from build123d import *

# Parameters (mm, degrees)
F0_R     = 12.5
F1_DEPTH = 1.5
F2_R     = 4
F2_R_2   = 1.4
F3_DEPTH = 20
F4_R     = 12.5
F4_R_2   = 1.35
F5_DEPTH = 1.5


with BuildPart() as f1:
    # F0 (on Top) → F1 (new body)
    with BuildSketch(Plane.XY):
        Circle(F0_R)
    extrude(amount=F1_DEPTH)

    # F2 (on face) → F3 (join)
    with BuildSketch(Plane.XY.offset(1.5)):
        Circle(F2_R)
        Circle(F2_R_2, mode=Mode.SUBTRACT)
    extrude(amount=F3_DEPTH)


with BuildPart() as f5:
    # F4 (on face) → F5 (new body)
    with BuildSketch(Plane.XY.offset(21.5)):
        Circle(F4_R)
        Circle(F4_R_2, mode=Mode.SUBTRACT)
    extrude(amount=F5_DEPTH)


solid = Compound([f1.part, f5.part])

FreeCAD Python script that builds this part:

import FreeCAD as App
import Part
import Sketcher
Q = App.Units.Quantity

doc = App.newDocument("Part")
body = doc.addObject("PartDesign::Body", "Body")

# Sketch on XY plane
sketch1 = body.newObject("Sketcher::SketchObject", "Sketch")
sketch1.AttachmentSupport = (doc.getObject("XY_Plane"), [""])
sketch1.MapMode = "FlatFace"
sketch1.addGeometry(Part.Circle(App.Vector(0, 0, 0), App.Vector(0, 0, 1), 12), False)
sketch1.addConstraint([
    Sketcher.Constraint("Coincident", 0, 3, -1, 1),
    Sketcher.Constraint("Diameter", 0, Q("25 mm")),
])
pad1 = body.newObject("PartDesign::Pad", "Pad")
pad1.Profile = sketch1
pad1.Length = 1.5

# Sketch on XY plane
sketch2 = body.newObject("Sketcher::SketchObject", "Sketch001")
sketch2.AttachmentSupport = (doc.getObject("XY_Plane"), [""])
sketch2.MapMode = "FlatFace"
sketch2.AttachmentOffset = App.Placement(App.Vector(0, 0, 1.5), App.Rotation())
sketch2.addGeometry([
    Part.Circle(App.Vector(0, 0, 0), App.Vector(0, 0, 1), 4),
    Part.Circle(App.Vector(0, 0, 0), App.Vector(0, 0, 1), 1.4),
], False)
sketch2.addConstraint([
    Sketcher.Constraint("Coincident", 0, 3, -1, 1),
    Sketcher.Constraint("Coincident", 1, 3, -1, 1),
    Sketcher.Constraint("Diameter", 0, Q("8 mm")),
    Sketcher.Constraint("Diameter", 1, Q("2.8 mm")),
])
pad2 = body.newObject("PartDesign::Pad", "Pad001")
pad2.Profile = sketch2
pad2.Length = 20
body2 = doc.addObject("PartDesign::Body", "Body001")

# Sketch on XY plane
sketch3 = body2.newObject("Sketcher::SketchObject", "Sketch002")
sketch3.AttachmentSupport = (doc.getObject("XY_Plane001"), [""])
sketch3.MapMode = "FlatFace"
sketch3.AttachmentOffset = App.Placement(App.Vector(0, 0, 21.5), App.Rotation())
sketch3.addGeometry([
    Part.Circle(App.Vector(0, 0, 0), App.Vector(0, 0, 1), 12.5),
    Part.Circle(App.Vector(0, 0, 0), App.Vector(0, 0, 1), 1.4),
], False)
sketch3.addConstraint([
    Sketcher.Constraint("Coincident", 0, 3, -1, 1),
    Sketcher.Constraint("Coincident", 1, 3, -1, 1),
    Sketcher.Constraint("Diameter", 0, Q("25 mm")),
    Sketcher.Constraint("Diameter", 1, Q("2.7 mm")),
])
pad3 = body2.newObject("PartDesign::Pad", "Pad002")
pad3.Profile = sketch3
pad3.Length = 1.5

doc.recompute()
